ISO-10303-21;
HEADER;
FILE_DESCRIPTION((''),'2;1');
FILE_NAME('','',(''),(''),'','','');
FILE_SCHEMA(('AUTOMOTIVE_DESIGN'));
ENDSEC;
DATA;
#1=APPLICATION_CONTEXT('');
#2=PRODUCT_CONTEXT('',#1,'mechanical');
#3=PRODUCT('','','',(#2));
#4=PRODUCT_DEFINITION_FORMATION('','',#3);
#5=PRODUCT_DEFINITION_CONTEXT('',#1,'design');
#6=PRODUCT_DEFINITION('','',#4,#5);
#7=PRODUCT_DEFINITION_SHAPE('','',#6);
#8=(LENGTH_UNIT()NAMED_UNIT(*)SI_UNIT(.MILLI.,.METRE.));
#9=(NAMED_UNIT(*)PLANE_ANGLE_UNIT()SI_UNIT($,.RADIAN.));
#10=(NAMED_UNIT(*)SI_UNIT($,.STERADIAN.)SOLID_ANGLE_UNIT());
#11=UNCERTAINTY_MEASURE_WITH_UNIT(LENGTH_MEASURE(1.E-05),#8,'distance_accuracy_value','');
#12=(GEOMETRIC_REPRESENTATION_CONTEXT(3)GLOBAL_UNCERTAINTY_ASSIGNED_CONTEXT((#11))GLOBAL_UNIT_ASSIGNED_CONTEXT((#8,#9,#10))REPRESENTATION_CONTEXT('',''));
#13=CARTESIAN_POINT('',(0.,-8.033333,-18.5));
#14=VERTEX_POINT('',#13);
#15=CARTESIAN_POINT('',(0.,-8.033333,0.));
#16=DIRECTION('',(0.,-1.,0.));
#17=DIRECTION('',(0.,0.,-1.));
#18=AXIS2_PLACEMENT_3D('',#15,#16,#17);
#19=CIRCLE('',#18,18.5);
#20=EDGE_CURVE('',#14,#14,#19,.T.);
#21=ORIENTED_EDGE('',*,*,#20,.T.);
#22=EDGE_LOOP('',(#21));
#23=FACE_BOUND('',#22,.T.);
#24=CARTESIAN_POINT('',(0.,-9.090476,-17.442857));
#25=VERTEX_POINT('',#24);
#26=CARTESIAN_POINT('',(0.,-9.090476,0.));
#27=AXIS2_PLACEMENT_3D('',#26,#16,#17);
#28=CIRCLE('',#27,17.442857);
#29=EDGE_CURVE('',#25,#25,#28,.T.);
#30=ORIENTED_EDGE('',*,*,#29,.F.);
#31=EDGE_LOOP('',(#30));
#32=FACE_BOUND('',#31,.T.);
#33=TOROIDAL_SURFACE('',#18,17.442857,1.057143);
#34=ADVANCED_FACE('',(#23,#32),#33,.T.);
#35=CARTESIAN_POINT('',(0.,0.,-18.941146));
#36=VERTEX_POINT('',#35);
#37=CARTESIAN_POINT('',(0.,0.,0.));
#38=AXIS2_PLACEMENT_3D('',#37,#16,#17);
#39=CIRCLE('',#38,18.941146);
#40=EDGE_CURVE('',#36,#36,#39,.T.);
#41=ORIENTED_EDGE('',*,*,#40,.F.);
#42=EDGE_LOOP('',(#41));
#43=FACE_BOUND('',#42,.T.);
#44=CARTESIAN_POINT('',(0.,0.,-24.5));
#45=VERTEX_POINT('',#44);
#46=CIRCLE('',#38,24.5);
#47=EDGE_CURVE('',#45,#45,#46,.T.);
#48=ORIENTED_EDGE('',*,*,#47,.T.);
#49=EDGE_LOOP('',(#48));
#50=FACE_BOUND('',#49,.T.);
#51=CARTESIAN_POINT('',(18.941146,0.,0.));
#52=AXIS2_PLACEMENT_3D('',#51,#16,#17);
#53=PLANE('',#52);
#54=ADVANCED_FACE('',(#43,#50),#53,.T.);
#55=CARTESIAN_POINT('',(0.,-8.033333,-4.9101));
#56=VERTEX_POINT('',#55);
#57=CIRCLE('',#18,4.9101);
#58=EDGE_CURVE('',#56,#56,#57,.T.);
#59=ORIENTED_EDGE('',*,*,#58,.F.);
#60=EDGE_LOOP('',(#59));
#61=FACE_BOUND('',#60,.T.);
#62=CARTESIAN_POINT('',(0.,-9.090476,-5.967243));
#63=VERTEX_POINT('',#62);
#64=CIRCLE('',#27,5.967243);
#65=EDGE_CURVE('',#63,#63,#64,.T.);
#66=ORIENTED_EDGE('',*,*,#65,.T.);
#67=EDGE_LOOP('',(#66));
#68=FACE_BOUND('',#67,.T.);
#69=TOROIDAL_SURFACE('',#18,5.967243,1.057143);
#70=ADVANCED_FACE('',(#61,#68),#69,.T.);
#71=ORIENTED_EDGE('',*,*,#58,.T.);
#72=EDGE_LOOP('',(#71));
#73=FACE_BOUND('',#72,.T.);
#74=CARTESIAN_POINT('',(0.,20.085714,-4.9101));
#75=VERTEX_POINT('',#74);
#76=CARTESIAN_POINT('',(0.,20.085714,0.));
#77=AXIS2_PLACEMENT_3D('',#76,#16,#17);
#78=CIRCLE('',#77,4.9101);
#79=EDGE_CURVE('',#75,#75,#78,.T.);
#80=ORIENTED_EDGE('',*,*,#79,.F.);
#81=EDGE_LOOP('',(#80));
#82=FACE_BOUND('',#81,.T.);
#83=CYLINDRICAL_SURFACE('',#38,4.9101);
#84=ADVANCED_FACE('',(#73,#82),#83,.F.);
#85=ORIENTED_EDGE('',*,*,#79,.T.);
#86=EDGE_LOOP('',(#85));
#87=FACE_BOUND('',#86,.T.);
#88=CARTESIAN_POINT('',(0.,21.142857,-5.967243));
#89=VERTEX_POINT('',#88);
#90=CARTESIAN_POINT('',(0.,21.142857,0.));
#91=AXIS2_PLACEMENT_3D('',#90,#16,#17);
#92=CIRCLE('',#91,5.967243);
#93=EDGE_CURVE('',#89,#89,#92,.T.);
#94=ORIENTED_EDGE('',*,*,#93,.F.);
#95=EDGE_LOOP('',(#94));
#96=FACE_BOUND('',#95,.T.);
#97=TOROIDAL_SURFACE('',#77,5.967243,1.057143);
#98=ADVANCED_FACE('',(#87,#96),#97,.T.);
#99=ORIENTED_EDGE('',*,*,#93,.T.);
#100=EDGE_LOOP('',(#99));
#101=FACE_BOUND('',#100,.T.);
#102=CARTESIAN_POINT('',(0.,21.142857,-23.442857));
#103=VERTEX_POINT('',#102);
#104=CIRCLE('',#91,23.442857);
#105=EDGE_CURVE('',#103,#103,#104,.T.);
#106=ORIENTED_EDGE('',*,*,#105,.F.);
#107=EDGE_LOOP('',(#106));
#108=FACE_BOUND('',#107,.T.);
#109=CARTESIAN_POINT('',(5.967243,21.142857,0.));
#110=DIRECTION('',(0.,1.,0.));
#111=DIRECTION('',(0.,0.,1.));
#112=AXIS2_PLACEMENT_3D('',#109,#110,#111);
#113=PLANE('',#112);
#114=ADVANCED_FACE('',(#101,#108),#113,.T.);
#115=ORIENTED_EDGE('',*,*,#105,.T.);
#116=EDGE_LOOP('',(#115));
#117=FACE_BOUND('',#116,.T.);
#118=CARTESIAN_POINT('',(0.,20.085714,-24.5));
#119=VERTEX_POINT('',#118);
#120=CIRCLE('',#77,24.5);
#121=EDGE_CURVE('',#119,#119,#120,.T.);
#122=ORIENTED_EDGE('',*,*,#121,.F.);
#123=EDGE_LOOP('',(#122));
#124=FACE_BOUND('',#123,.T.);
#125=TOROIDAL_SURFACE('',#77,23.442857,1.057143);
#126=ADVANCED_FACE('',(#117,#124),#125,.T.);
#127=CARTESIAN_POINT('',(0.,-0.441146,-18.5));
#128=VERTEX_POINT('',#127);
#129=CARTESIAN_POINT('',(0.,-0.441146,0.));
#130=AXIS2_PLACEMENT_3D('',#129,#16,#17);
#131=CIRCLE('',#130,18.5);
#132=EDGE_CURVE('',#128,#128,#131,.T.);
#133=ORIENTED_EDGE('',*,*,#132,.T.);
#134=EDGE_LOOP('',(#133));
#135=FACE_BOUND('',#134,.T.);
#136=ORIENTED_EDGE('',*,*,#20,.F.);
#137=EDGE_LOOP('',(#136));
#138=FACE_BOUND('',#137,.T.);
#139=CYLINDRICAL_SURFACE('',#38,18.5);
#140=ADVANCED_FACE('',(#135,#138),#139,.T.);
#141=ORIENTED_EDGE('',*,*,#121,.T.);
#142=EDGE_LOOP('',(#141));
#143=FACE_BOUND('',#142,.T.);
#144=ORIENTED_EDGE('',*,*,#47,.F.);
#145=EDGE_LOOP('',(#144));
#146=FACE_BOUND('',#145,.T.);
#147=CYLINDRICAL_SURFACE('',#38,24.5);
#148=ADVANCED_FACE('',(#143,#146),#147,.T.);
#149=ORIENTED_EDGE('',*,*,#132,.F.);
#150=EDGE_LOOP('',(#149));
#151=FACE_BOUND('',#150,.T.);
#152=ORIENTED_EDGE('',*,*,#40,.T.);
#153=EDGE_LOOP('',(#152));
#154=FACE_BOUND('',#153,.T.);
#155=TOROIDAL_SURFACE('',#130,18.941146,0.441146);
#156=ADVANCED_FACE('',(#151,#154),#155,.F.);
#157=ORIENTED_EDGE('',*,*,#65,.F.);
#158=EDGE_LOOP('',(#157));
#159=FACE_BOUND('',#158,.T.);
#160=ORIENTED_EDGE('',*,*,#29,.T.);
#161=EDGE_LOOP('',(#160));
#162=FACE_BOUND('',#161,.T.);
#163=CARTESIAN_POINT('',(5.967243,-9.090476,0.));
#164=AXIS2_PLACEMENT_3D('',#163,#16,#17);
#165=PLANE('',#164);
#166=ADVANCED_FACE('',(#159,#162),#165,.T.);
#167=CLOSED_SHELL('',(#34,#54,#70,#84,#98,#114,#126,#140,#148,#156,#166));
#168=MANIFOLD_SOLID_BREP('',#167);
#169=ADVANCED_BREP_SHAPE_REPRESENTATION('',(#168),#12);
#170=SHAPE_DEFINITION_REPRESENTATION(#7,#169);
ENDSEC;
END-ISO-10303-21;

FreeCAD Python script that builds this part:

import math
import FreeCAD as App
import Part
import Sketcher

doc = App.newDocument("Part")
params = doc.addObject("Spreadsheet::Sheet", "Params")
for row, (alias, value) in enumerate([
    ("revolution_angle", "360 deg"),
], start=1):
    params.set(f"A{row}", alias)
    params.set(f"B{row}", "=" + value)
    params.setAlias(f"B{row}", alias)

body = doc.addObject("PartDesign::Body", "Body")

sketch1 = body.newObject("Sketcher::SketchObject", "Sketch")
sketch1.AttachmentSupport = (doc.getObject("XY_Plane"), [""])
sketch1.MapMode = "FlatFace"
sketch1.addGeometry(Part.LineSegment(App.Vector(4.91, 20.09, 0), App.Vector(4.91, -8.03, 0)), False)
sketch1.addGeometry(Part.ArcOfCircle(Part.Circle(App.Vector(5.97, -8.03, 0), App.Vector(0, 0, 1), 1.06), math.radians(180), math.radians(270)), False)
sketch1.addGeometry(Part.LineSegment(App.Vector(5.97, -9.09, 0), App.Vector(17.44, -9.09, 0)), False)
sketch1.addGeometry(Part.ArcOfCircle(Part.Circle(App.Vector(17.44, -8.03, 0), App.Vector(0, 0, 1), 1.06), math.radians(-90), math.radians(0)), False)
sketch1.addGeometry(Part.LineSegment(App.Vector(18.5, -8.03, 0), App.Vector(18.5, -0.44, 0)), False)
sketch1.addGeometry(Part.ArcOfCircle(Part.Circle(App.Vector(18.94, -0.44, 0), App.Vector(0, 0, 1), 0.44), math.radians(90), math.radians(180)), False)
sketch1.addGeometry(Part.LineSegment(App.Vector(18.94, 0, 0), App.Vector(24.5, 0, 0)), False)
sketch1.addGeometry(Part.LineSegment(App.Vector(24.5, 0, 0), App.Vector(24.5, 20.09, 0)), False)
sketch1.addGeometry(Part.ArcOfCircle(Part.Circle(App.Vector(23.44, 20.09, 0), App.Vector(0, 0, 1), 1.06), math.radians(0), math.radians(90)), False)
sketch1.addGeometry(Part.LineSegment(App.Vector(23.44, 21.14, 0), App.Vector(5.97, 21.14, 0)), False)
sketch1.addGeometry(Part.ArcOfCircle(Part.Circle(App.Vector(5.97, 20.09, 0), App.Vector(0, 0, 1), 1.06), math.radians(90), math.radians(180)), False)
sketch1.addConstraint(Sketcher.Constraint("Tangent", 0, 2, 1, 1))
sketch1.addConstraint(Sketcher.Constraint("Tangent", 1, 2, 2, 1))
sketch1.addConstraint(Sketcher.Constraint("Tangent", 2, 2, 3, 1))
sketch1.addConstraint(Sketcher.Constraint("Tangent", 3, 2, 4, 1))
sketch1.addConstraint(Sketcher.Constraint("Tangent", 4, 2, 5, 2))
sketch1.addConstraint(Sketcher.Constraint("Tangent", 5, 1, 6, 1))
sketch1.addConstraint(Sketcher.Constraint("Coincident", 6, 2, 7, 1))
sketch1.addConstraint(Sketcher.Constraint("Tangent", 7, 2, 8, 1))
sketch1.addConstraint(Sketcher.Constraint("Tangent", 8, 2, 9, 1))
sketch1.addConstraint(Sketcher.Constraint("Tangent", 9, 2, 10, 1))
sketch1.addConstraint(Sketcher.Constraint("Tangent", 10, 2, 0, 1))
sketch1.addConstraint(Sketcher.Constraint("Vertical", 0))
sketch1.addConstraint(Sketcher.Constraint("Horizontal", 2))
sketch1.addConstraint(Sketcher.Constraint("Vertical", 4))
sketch1.addConstraint(Sketcher.Constraint("Horizontal", 6))
sketch1.addConstraint(Sketcher.Constraint("Vertical", 7))
sketch1.addConstraint(Sketcher.Constraint("Horizontal", 9))
sketch1.addConstraint(Sketcher.Constraint("Equal", 1, 3))
sketch1.addConstraint(Sketcher.Constraint("Equal", 3, 8))
sketch1.addConstraint(Sketcher.Constraint("Equal", 8, 10))
sketch1.addConstraint(Sketcher.Constraint("PointOnObject", 5, 1, -1))
sketch1.addConstraint(Sketcher.Constraint("DistanceX", 3, 3, 8, 3, 6.0))
sketch1.addConstraint(Sketcher.Constraint("DistanceX", -1, 1, 3, 2, 18.5))
sketch1.addConstraint(Sketcher.Constraint("Radius", 1, 1.057143))
sketch1.addConstraint(Sketcher.Constraint("Radius", 5, 0.441146))
sketch1.addConstraint(Sketcher.Constraint("DistanceX", -1, 1, 0, 2, 4.9101))
sketch1.addConstraint(Sketcher.Constraint("DistanceY", 0, 2, 0, 1, 28.119048))
sketch1.addConstraint(Sketcher.Constraint("DistanceY", 4, 1, 4, 2, 7.592187))
revolution = body.newObject("PartDesign::Revolution", "Revolution")
revolution.Profile = sketch1
revolution.ReferenceAxis = (sketch1, ["V_Axis"])
revolution.setExpression("Angle", "Params.revolution_angle")

doc.recompute()
